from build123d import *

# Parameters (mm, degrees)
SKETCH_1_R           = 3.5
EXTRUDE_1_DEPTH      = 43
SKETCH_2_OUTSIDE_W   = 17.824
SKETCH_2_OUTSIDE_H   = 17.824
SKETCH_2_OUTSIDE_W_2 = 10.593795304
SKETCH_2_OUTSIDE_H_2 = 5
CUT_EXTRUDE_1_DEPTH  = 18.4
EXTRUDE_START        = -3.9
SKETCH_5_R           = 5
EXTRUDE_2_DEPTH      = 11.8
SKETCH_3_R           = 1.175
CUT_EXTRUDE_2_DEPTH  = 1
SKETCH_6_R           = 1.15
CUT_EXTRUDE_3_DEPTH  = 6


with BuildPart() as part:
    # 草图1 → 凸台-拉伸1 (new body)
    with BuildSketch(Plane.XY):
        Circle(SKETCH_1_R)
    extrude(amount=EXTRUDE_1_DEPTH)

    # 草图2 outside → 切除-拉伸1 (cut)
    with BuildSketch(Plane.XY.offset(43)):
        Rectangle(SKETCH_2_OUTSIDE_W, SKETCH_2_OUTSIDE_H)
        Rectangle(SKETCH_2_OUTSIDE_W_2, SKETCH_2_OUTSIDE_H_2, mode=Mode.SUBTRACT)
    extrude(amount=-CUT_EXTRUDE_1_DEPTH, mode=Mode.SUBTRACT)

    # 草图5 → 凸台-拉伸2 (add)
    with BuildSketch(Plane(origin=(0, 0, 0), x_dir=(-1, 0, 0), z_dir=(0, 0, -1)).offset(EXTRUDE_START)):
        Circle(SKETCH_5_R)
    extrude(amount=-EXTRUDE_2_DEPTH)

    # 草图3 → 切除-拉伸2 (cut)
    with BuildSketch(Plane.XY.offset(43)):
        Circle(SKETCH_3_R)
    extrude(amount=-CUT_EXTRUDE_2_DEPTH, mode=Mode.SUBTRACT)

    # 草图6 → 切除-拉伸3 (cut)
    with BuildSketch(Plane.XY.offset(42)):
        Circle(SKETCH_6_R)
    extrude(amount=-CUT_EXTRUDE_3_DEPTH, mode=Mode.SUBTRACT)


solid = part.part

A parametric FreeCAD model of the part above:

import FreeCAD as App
import Part
import Sketcher
from FreeCAD import Vector

doc = App.newDocument("Part")
params = doc.addObject("Spreadsheet::Sheet", "Params")
for row, (alias, value) in enumerate([
    ("sketch1_diameter", "7 mm"),
    ("pad1_length", "43 mm"),
    ("sketch2_height", "5 mm"),
    ("pocket1_length", "18.4 mm"),
    ("sketch3_diameter", "10 mm"),
    ("pad2_length", "11.8 mm"),
    ("sketch4_diameter", "2.35 mm"),
    ("pocket2_length", "1 mm"),
    ("sketch5_diameter", "2.3 mm"),
    ("pocket3_length", "6 mm"),
], start=1):
    params.set(f"A{row}", alias)
    params.set(f"B{row}", "=" + value)
    params.setAlias(f"B{row}", alias)

body = doc.addObject("PartDesign::Body", "Body")

sketch1 = body.newObject("Sketcher::SketchObject", "Sketch")
sketch1.AttachmentSupport = (doc.getObject("XY_Plane"), [""])
sketch1.MapMode = "FlatFace"
sketch1.addGeometry(Part.Circle(Vector(0, 0, 0), Vector(0, 0, 1), 3.5), False)
sketch1.addConstraint(Sketcher.Constraint("Coincident", 0, 3, -1, 1))
sketch1.addConstraint(Sketcher.Constraint("Diameter", 0, 7.0))
sketch1.setExpression("Constraints[1]", "Params.sketch1_diameter")
pad1 = body.newObject("PartDesign::Pad", "Pad")
pad1.Profile = sketch1
pad1.setExpression("Length", "Params.pad1_length")

sketch2 = body.newObject("Sketcher::SketchObject", "Sketch001")
sketch2.AttachmentSupport = (doc.getObject("XY_Plane"), [""])
sketch2.MapMode = "FlatFace"
sketch2.AttachmentOffset = App.Placement(Vector(0, 0, 43), App.Rotation())
sketch2.addGeometry(Part.LineSegment(Vector(-9, 9, 0), Vector(-9, -9, 0)), False)
sketch2.addGeometry(Part.LineSegment(Vector(-9, -9, 0), Vector(9, -9, 0)), False)
sketch2.addGeometry(Part.LineSegment(Vector(9, -9, 0), Vector(9, 9, 0)), False)
sketch2.addGeometry(Part.LineSegment(Vector(9, 9, 0), Vector(-9, 9, 0)), False)
sketch2.addGeometry(Part.LineSegment(Vector(5, -2, 0), Vector(-5, -2, 0)), False)
sketch2.addGeometry(Part.LineSegment(Vector(-5, -2, 0), Vector(-5, 2, 0)), False)
sketch2.addGeometry(Part.LineSegment(Vector(-5, 2, 0), Vector(5, 2, 0)), False)
sketch2.addGeometry(Part.LineSegment(Vector(5, 2, 0), Vector(5, -2, 0)), False)
sketch2.addConstraint(Sketcher.Constraint("Coincident", 0, 2, 1, 1))
sketch2.addConstraint(Sketcher.Constraint("Coincident", 1, 2, 2, 1))
sketch2.addConstraint(Sketcher.Constraint("Coincident", 2, 2, 3, 1))
sketch2.addConstraint(Sketcher.Constraint("Coincident", 3, 2, 0, 1))
sketch2.addConstraint(Sketcher.Constraint("Coincident", 4, 2, 5, 1))
sketch2.addConstraint(Sketcher.Constraint("Coincident", 5, 2, 6, 1))
sketch2.addConstraint(Sketcher.Constraint("Coincident", 6, 2, 7, 1))
sketch2.addConstraint(Sketcher.Constraint("Coincident", 7, 2, 4, 1))
sketch2.addConstraint(Sketcher.Constraint("Vertical", 0))
sketch2.addConstraint(Sketcher.Constraint("Horizontal", 1))
sketch2.addConstraint(Sketcher.Constraint("Vertical", 2))
sketch2.addConstraint(Sketcher.Constraint("Horizontal", 3))
sketch2.addConstraint(Sketcher.Constraint("Horizontal", 4))
sketch2.addConstraint(Sketcher.Constraint("Vertical", 5))
sketch2.addConstraint(Sketcher.Constraint("Horizontal", 6))
sketch2.addConstraint(Sketcher.Constraint("Vertical", 7))
sketch2.addConstraint(Sketcher.Constraint("Symmetric", 0, 2, 2, 2, -1, 1))
sketch2.addConstraint(Sketcher.Constraint("Symmetric", 4, 2, 6, 2, -1, 1))
sketch2.addConstraint(Sketcher.Constraint("Equal", 3, 0))
sketch2.addConstraint(Sketcher.Constraint("DistanceY", 5, 1, 5, 2, 5.0))
sketch2.addConstraint(Sketcher.Constraint("DistanceX", 1, 1, 1, 2, 17.824))
sketch2.addConstraint(Sketcher.Constraint("DistanceX", 4, 2, 4, 1, 10.593795))
sketch2.setExpression("Constraints[19]", "Params.sketch2_height")
pocket1 = body.newObject("PartDesign::Pocket", "Pocket")
pocket1.Profile = sketch2
pocket1.setExpression("Length", "Params.pocket1_length")

sketch3 = body.newObject("Sketcher::SketchObject", "Sketch002")
sketch3.AttachmentSupport = (doc.getObject("XY_Plane"), [""])
sketch3.MapMode = "FlatFace"
sketch3.AttachmentOffset = App.Placement(Vector(0, 0, 3.9), App.Rotation())
sketch3.addGeometry(Part.Circle(Vector(0, 0, 0), Vector(0, 0, 1), 5), False)
sketch3.addConstraint(Sketcher.Constraint("Coincident", 0, 3, -1, 1))
sketch3.addConstraint(Sketcher.Constraint("Diameter", 0, 10.0))
sketch3.setExpression("Constraints[1]", "Params.sketch3_diameter")
pad2 = body.newObject("PartDesign::Pad", "Pad001")
pad2.Profile = sketch3
pad2.setExpression("Length", "Params.pad2_length")

sketch4 = body.newObject("Sketcher::SketchObject", "Sketch003")
sketch4.AttachmentSupport = (doc.getObject("XY_Plane"), [""])
sketch4.MapMode = "FlatFace"
sketch4.AttachmentOffset = App.Placement(Vector(0, 0, 43), App.Rotation())
sketch4.addGeometry(Part.Circle(Vector(0, 0, 0), Vector(0, 0, 1), 1.2), False)
sketch4.addConstraint(Sketcher.Constraint("Coincident", 0, 3, -1, 1))
sketch4.addConstraint(Sketcher.Constraint("Diameter", 0, 2.35))
sketch4.setExpression("Constraints[1]", "Params.sketch4_diameter")
pocket2 = body.newObject("PartDesign::Pocket", "Pocket001")
pocket2.Profile = sketch4
pocket2.setExpression("Length", "Params.pocket2_length")

sketch5 = body.newObject("Sketcher::SketchObject", "Sketch004")
sketch5.AttachmentSupport = (doc.getObject("XY_Plane"), [""])
sketch5.MapMode = "FlatFace"
sketch5.AttachmentOffset = App.Placement(Vector(0, 0, 42), App.Rotation())
sketch5.addGeometry(Part.Circle(Vector(0, 0, 0), Vector(0, 0, 1), 1.1), False)
sketch5.addConstraint(Sketcher.Constraint("Coincident", 0, 3, -1, 1))
sketch5.addConstraint(Sketcher.Constraint("Diameter", 0, 2.3))
sketch5.setExpression("Constraints[1]", "Params.sketch5_diameter")
pocket3 = body.newObject("PartDesign::Pocket", "Pocket002")
pocket3.Profile = sketch5
pocket3.setExpression("Length", "Params.pocket3_length")

doc.recompute()
